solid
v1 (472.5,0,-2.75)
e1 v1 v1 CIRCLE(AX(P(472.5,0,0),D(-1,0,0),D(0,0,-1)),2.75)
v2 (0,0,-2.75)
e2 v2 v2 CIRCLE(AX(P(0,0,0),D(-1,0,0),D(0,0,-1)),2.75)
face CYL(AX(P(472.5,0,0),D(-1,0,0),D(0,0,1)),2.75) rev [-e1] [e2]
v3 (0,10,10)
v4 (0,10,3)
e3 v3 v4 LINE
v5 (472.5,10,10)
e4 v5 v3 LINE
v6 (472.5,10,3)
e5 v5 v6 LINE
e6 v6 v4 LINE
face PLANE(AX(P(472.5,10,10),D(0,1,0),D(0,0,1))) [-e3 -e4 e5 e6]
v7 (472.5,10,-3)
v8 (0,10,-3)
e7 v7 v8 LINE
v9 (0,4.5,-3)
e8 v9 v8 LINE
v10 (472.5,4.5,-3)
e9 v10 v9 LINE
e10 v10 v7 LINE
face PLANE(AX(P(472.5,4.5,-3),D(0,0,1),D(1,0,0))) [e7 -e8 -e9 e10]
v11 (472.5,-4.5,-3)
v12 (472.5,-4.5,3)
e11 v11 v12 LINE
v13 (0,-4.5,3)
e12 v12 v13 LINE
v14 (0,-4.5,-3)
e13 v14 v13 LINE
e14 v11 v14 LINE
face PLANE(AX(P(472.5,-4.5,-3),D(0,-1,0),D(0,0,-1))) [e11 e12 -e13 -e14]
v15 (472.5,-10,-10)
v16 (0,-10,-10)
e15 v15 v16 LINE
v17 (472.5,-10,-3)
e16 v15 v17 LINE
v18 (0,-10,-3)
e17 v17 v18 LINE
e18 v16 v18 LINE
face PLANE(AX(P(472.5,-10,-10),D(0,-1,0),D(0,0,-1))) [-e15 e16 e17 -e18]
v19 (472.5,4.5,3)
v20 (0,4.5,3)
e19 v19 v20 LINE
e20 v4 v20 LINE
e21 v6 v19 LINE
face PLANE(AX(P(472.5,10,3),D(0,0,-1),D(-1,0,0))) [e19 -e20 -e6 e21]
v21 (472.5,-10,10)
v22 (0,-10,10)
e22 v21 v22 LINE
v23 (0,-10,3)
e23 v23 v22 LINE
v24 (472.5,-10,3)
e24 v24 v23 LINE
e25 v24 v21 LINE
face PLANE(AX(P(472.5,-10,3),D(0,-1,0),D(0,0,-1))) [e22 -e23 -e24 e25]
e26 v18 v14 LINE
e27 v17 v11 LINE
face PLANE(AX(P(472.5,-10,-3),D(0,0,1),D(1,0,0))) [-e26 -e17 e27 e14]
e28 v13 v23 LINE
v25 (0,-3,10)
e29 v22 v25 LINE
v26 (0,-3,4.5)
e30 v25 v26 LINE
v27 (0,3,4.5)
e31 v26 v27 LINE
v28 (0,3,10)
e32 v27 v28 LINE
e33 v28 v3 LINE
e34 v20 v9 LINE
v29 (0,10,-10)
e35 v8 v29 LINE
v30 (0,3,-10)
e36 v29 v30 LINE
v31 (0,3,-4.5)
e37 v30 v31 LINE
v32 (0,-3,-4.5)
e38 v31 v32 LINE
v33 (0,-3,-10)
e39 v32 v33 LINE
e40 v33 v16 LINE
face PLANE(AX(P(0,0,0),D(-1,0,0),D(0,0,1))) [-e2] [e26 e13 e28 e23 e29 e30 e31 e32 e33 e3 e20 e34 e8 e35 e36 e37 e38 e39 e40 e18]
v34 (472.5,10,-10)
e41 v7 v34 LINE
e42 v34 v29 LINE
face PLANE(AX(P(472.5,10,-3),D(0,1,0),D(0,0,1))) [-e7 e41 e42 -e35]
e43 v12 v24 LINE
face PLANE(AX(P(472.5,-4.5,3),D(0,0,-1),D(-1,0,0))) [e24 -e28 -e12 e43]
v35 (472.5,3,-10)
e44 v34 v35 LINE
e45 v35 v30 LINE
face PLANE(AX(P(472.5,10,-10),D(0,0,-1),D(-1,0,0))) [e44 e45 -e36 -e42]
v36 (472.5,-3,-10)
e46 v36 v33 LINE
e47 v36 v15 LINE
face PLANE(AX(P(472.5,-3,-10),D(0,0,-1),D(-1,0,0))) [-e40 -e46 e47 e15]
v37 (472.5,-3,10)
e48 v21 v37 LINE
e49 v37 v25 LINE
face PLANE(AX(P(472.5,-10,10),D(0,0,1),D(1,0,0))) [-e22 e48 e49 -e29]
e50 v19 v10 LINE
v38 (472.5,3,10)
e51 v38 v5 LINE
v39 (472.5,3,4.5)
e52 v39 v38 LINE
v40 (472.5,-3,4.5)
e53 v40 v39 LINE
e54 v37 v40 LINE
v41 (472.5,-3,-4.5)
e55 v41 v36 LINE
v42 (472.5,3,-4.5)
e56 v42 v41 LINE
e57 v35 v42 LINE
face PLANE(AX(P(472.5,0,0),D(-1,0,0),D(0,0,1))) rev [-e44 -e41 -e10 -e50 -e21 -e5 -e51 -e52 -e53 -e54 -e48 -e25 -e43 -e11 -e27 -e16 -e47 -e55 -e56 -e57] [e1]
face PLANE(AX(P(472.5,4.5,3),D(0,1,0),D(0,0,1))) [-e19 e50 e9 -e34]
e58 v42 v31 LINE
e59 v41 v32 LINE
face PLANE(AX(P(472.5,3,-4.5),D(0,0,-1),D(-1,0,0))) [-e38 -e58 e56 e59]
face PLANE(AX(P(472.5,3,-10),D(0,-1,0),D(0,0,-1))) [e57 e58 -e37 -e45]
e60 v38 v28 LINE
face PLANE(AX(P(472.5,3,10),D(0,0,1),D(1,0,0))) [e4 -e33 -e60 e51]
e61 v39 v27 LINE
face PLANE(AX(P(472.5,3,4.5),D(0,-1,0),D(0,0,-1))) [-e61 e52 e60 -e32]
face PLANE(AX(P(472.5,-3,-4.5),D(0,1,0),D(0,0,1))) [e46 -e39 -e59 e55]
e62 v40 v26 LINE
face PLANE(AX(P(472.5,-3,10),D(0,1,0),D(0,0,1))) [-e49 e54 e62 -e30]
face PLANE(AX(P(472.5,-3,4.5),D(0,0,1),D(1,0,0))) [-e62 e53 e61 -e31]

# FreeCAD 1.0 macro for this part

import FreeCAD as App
import Part
import Sketcher


def add_polygon(sketch, points):
    """Adds a closed chain of lines whose ends are joined by coincident constraints."""
    first, n = sketch.GeometryCount, len(points)
    for a, b in zip(points, points[1:] + points[:1]):
        sketch.addGeometry(Part.LineSegment(App.Vector(*a, 0), App.Vector(*b, 0)), False)
    for i in range(n):
        sketch.addConstraint(Sketcher.Constraint("Coincident", first + i, 2, first + (i + 1) % n, 1))

doc = App.newDocument("Part")
body = doc.addObject("PartDesign::Body", "Body")

# Sketch on YZ plane
sketch1 = body.newObject("Sketcher::SketchObject", "Sketch")
sketch1.AttachmentSupport = (doc.getObject("YZ_Plane"), [""])
sketch1.MapMode = "FlatFace"
add_polygon(sketch1, [(3, -10), (3, -4.5), (-3, -4.5), (-3, -10), (-10, -10), (-10, -3), (-4.5, -3), (-4.5, 3), (-10, 3), (-10, 10), (-3, 10), (-3, 4.5), (3, 4.5), (3, 10), (10, 10), (10, 3), (4.5, 3), (4.5, -3), (10, -3), (10, -10)])  # lines 0-19
sketch1.addGeometry(Part.Circle(App.Vector(0, 0, 0), App.Vector(0, 0, 1), 2.75), False)  # 20
sketch1.addConstraint(Sketcher.Constraint("Vertical", 0))
sketch1.addConstraint(Sketcher.Constraint("Horizontal", 1))
sketch1.addConstraint(Sketcher.Constraint("Vertical", 2))
sketch1.addConstraint(Sketcher.Constraint("Horizontal", 3))
sketch1.addConstraint(Sketcher.Constraint("Vertical", 4))
sketch1.addConstraint(Sketcher.Constraint("Horizontal", 5))
sketch1.addConstraint(Sketcher.Constraint("Vertical", 6))
sketch1.addConstraint(Sketcher.Constraint("Horizontal", 7))
sketch1.addConstraint(Sketcher.Constraint("Vertical", 8))
sketch1.addConstraint(Sketcher.Constraint("Horizontal", 9))
sketch1.addConstraint(Sketcher.Constraint("Vertical", 10))
sketch1.addConstraint(Sketcher.Constraint("Horizontal", 11))
sketch1.addConstraint(Sketcher.Constraint("Vertical", 12))
sketch1.addConstraint(Sketcher.Constraint("Horizontal", 13))
sketch1.addConstraint(Sketcher.Constraint("Vertical", 14))
sketch1.addConstraint(Sketcher.Constraint("Horizontal", 15))
sketch1.addConstraint(Sketcher.Constraint("Vertical", 16))
sketch1.addConstraint(Sketcher.Constraint("Horizontal", 17))
sketch1.addConstraint(Sketcher.Constraint("Vertical", 18))
sketch1.addConstraint(Sketcher.Constraint("Horizontal", 19))
sketch1.addConstraint(Sketcher.Constraint("Coincident", 20, 3, -1, 1))
sketch1.addConstraint(Sketcher.Constraint("Symmetric", 0, 2, 10, 2, -1, 1))
sketch1.addConstraint(Sketcher.Constraint("Symmetric", 2, 2, 12, 2, -1, 1))
sketch1.addConstraint(Sketcher.Constraint("Symmetric", 4, 2, 14, 2, -1, 1))
sketch1.addConstraint(Sketcher.Constraint("Symmetric", 6, 2, 16, 2, -1, 1))
sketch1.addConstraint(Sketcher.Constraint("Symmetric", 8, 2, 18, 2, -1, 1))
sketch1.addConstraint(Sketcher.Constraint("Symmetric", 9, 2, 12, 2, -2))
sketch1.addConstraint(Sketcher.Constraint("Symmetric", 7, 2, 14, 2, -2))
sketch1.addConstraint(Sketcher.Constraint("Equal", 17, 0))
sketch1.addConstraint(Sketcher.Constraint("Equal", 19, 4))
sketch1.addConstraint(Sketcher.Constraint("Equal", 11, 6))
sketch1.addConstraint(Sketcher.Constraint("Diameter", 20, 5.5))
sketch1.addConstraint(Sketcher.Constraint("DistanceX", 1, 2, 1, 1, 6.0))
sketch1.addConstraint(Sketcher.Constraint("DistanceX", 3, 2, 3, 1, 7.0))
sketch1.addConstraint(Sketcher.Constraint("DistanceX", 5, 1, 5, 2, 5.5))
pad1 = body.newObject("PartDesign::Pad", "Pad")
pad1.Profile = sketch1
pad1.Length = 472.5

doc.recompute()
